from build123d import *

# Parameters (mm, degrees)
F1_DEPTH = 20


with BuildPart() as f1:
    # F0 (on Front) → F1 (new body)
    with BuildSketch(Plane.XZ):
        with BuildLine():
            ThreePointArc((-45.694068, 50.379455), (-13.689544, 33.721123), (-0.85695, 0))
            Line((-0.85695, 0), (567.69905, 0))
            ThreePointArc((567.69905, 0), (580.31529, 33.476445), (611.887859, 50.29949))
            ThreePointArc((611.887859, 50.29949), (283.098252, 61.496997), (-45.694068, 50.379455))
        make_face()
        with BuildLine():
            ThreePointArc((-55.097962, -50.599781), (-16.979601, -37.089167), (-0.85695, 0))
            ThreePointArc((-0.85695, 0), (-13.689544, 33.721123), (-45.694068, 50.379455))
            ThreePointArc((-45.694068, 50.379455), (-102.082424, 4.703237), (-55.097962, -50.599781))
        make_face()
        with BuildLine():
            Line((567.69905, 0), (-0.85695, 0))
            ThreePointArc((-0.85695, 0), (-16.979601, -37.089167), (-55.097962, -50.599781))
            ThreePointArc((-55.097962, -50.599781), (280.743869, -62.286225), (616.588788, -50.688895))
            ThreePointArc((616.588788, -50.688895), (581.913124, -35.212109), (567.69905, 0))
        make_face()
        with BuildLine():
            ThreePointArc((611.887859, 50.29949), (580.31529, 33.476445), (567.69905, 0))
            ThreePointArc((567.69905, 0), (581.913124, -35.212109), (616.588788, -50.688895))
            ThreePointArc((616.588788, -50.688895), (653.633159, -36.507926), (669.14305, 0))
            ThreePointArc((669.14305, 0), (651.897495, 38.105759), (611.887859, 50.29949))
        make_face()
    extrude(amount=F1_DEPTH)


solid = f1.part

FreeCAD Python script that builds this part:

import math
import FreeCAD as App
import Part
import Sketcher

V = App.Vector

doc = App.newDocument("Part")
params = doc.addObject("Spreadsheet::Sheet", "Params")
for row, (alias, value) in enumerate([
    ("pad1_length", "20 mm"),
], start=1):
    params.set(f"A{row}", alias)
    params.set(f"B{row}", "=" + value)
    params.setAlias(f"B{row}", alias)

body = doc.addObject("PartDesign::Body", "Body")

# Sketch on XZ plane
sketch1 = body.newObject("Sketcher::SketchObject", "Sketch")
sketch1.AttachmentSupport = (doc.getObject("XZ_Plane"), [""])
sketch1.MapMode = "FlatFace"
sketch1.addGeometry([
    Part.ArcOfCircle(Part.Circle(V(283, -4789, 0), V(0, 0, 1), 4850), math.radians(86.11), math.radians(93.88)),  # 0
    Part.ArcOfCircle(Part.Circle(V(-52, 0, 0), V(0, 0, 1), 51), math.radians(83), math.radians(266)),  # 1
    Part.ArcOfCircle(Part.Circle(V(281, 4788, 0), V(0, 0, 1), 4850), math.radians(-93.98), math.radians(-86.04)),  # 2
    Part.ArcOfCircle(Part.Circle(V(618, 0, 0), V(0, 0, 1), 51), math.radians(-92), math.radians(0)),  # 3
    Part.ArcOfCircle(Part.Circle(V(618, 0, 0), V(0, 0, 1), 51), math.radians(0), math.radians(97)),  # 4
], False)
sketch1.addConstraint([
    Sketcher.Constraint("Coincident", 0, 2, 1, 1),
    Sketcher.Constraint("Tangent", 1, 2, 2, 1),
    Sketcher.Constraint("Coincident", 2, 2, 3, 1),
    Sketcher.Constraint("Tangent", 3, 2, 4, 1),
    Sketcher.Constraint("Coincident", 4, 2, 0, 1),
    Sketcher.Constraint("Equal", 1, 3),
    Sketcher.Constraint("Equal", 3, 4),
    Sketcher.Constraint("PointOnObject", 1, 3, -1),
    Sketcher.Constraint("PointOnObject", 3, 3, -1),
    Sketcher.Constraint("PointOnObject", 3, 2, -1),
    Sketcher.Constraint("Radius", 1, 50.722),
    Sketcher.Constraint("DistanceX", 1, 3, 3, 3, 670.000001),
    Sketcher.Constraint("Radius", 0, 4850.000053),
    Sketcher.Constraint("Radius", 2, 4850.000136),
    Sketcher.Constraint("DistanceX", -1, 1, 0, 3, 282.50847),
    Sketcher.Constraint("DistanceY", 0, 3, -1, 1, 4788.50302),
    Sketcher.Constraint("DistanceX", 1, 3, -1, 1, 51.57895),
    Sketcher.Constraint("DistanceY", 0, 3, 2, 3, 9576.216888),
])
pad1 = body.newObject("PartDesign::Pad", "Pad")
pad1.Profile = sketch1
pad1.setExpression("Length", "Params.pad1_length")

doc.recompute()
